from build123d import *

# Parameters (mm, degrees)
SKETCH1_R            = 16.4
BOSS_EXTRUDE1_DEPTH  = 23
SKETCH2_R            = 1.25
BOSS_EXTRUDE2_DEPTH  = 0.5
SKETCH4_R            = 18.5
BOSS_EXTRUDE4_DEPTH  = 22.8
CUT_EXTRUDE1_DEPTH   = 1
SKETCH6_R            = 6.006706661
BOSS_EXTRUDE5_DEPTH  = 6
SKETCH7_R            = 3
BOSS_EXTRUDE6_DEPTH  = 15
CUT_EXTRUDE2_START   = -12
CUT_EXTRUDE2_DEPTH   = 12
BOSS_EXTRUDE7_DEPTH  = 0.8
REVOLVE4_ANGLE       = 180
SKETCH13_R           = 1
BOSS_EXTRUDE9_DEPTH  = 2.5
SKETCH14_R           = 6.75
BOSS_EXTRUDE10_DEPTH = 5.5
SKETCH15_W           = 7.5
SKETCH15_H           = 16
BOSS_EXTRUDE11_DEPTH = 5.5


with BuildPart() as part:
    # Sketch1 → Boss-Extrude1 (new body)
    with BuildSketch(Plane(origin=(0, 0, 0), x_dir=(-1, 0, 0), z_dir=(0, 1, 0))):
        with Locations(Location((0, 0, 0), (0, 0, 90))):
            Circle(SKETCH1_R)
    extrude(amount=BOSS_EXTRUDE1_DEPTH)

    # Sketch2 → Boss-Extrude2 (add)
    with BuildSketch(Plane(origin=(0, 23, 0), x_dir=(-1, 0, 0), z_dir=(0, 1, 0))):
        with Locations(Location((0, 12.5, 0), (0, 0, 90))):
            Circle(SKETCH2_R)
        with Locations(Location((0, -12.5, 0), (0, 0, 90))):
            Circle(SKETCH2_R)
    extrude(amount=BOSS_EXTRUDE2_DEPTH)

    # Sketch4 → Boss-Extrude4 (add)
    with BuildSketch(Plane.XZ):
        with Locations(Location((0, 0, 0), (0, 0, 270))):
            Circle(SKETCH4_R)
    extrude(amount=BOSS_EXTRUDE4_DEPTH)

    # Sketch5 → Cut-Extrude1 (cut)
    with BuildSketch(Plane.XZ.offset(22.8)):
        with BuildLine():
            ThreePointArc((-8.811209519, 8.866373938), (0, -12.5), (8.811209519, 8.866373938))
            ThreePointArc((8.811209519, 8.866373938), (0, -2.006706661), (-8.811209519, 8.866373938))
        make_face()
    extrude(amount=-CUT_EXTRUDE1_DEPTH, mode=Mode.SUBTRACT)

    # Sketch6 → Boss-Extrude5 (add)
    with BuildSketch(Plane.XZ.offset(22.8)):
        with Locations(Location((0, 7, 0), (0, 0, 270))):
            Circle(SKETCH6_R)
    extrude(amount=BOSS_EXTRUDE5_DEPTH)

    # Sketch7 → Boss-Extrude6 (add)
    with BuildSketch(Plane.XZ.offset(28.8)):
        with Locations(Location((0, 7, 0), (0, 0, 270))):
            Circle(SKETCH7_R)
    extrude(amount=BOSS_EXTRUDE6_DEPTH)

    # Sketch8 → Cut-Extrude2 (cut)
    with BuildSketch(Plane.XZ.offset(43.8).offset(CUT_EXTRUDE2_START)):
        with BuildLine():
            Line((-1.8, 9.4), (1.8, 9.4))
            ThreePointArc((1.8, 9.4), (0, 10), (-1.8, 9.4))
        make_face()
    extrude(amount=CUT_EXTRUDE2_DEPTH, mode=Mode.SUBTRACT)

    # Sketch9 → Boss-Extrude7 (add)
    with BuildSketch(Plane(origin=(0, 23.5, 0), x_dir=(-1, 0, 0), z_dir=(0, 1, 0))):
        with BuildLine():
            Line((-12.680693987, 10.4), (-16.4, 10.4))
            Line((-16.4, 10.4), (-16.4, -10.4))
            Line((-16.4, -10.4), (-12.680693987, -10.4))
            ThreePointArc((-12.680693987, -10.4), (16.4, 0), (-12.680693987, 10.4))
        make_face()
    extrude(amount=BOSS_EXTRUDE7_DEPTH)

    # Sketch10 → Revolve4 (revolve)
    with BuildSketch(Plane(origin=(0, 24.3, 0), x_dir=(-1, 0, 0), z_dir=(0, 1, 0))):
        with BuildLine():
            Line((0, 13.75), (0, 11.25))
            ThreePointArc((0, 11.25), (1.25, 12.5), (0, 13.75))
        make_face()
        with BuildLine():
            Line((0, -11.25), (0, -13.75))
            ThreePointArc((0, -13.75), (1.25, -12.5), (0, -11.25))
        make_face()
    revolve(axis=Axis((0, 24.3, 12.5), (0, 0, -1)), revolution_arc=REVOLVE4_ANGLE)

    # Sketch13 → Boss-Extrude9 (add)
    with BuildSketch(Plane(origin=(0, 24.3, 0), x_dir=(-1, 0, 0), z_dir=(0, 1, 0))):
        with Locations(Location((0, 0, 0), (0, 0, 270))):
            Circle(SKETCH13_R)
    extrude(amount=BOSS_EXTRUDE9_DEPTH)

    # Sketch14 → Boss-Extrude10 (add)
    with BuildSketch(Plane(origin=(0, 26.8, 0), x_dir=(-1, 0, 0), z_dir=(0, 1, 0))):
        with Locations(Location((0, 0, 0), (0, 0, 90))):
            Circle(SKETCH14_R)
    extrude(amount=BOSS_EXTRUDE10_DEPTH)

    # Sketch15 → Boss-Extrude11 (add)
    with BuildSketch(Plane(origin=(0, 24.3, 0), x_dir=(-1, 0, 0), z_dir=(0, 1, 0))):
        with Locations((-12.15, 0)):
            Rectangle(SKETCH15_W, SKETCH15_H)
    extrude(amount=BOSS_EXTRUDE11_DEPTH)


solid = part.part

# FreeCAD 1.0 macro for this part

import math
import FreeCAD as App
import Part
import Sketcher


def add_polygon(sketch, points):
    """Adds a closed chain of lines whose ends are joined by coincident constraints."""
    first, n = sketch.GeometryCount, len(points)
    for a, b in zip(points, points[1:] + points[:1]):
        sketch.addGeometry(Part.LineSegment(App.Vector(*a, 0), App.Vector(*b, 0)), False)
    for i in range(n):
        sketch.addConstraint(Sketcher.Constraint("Coincident", first + i, 2, first + (i + 1) % n, 1))

doc = App.newDocument("Part")
params = doc.addObject("Spreadsheet::Sheet", "Params")
for row, (alias, value) in enumerate([
    ("sketch1_diameter", "32.8 mm"),
    ("pad1_length", "23 mm"),
    ("sketch2_diameter", "2.5 mm"),
    ("pad2_length", "0.5 mm"),
    ("sketch3_diameter", "37 mm"),
    ("pad3_length", "22.8 mm"),
    ("sketch4_radius", "12.5 mm"),
    ("pocket1_length", "1 mm"),
    ("pad4_length", "6 mm"),
    ("sketch6_diameter", "6 mm"),
    ("pad5_length", "15 mm"),
    ("sketch7_radius", "3 mm"),
    ("sketch7_width", "3.6 mm"),
    ("pocket2_length", "12 mm"),
    ("sketch8_radius", "16.4 mm"),
    ("sketch8_height", "20.8 mm"),
    ("pad6_length", "0.8 mm"),
    ("sketch9_radius", "1.25 mm"),
    ("revolution_angle", "180 deg"),
    ("sketch10_diameter", "2 mm"),
    ("pad7_length", "2.5 mm"),
    ("sketch11_diameter", "13.5 mm"),
    ("pad8_length", "5.5 mm"),
    ("sketch12_height", "16 mm"),
    ("sketch12_width", "7.5 mm"),
    ("pad9_length", "5.5 mm"),
], start=1):
    params.set(f"A{row}", alias)
    params.set(f"B{row}", "=" + value)
    params.setAlias(f"B{row}", alias)

body = doc.addObject("PartDesign::Body", "Body")

# Sketch on XZ plane
sketch1 = body.newObject("Sketcher::SketchObject", "Sketch")
sketch1.AttachmentSupport = (doc.getObject("XZ_Plane"), [""])
sketch1.MapMode = "FlatFace"
sketch1.addGeometry(Part.Circle(App.Vector(0, 0, 0), App.Vector(0, 0, 1), 16), False)
sketch1.addConstraint(Sketcher.Constraint("Coincident", 0, 3, -1, 1))
sketch1.addConstraint(Sketcher.Constraint("Diameter", 0, 32.8))
sketch1.setExpression("Constraints[1]", "Params.sketch1_diameter")
pad1 = body.newObject("PartDesign::Pad", "Pad")
pad1.Profile = sketch1
pad1.setExpression("Length", "Params.pad1_length")
pad1.Reversed = True

# Sketch on XZ plane
sketch2 = body.newObject("Sketcher::SketchObject", "Sketch001")
sketch2.AttachmentSupport = (doc.getObject("XZ_Plane"), [""])
sketch2.MapMode = "FlatFace"
sketch2.AttachmentOffset = App.Placement(App.Vector(0, 0, -23), App.Rotation())
sketch2.addGeometry(Part.Circle(App.Vector(0, 12.5, 0), App.Vector(0, 0, 1), 1.2), False)
sketch2.addGeometry(Part.Circle(App.Vector(0, -12.5, 0), App.Vector(0, 0, 1), 1.2), False)
sketch2.addConstraint(Sketcher.Constraint("Equal", 0, 1))
sketch2.addConstraint(Sketcher.Constraint("Symmetric", 0, 3, 1, 3, -1, 1))
sketch2.addConstraint(Sketcher.Constraint("PointOnObject", 0, 3, -2))
sketch2.addConstraint(Sketcher.Constraint("Diameter", 0, 2.5))
sketch2.addConstraint(Sketcher.Constraint("DistanceY", 1, 3, 0, 3, 25.0))
sketch2.setExpression("Constraints[3]", "Params.sketch2_diameter")
pad2 = body.newObject("PartDesign::Pad", "Pad001")
pad2.Profile = sketch2
pad2.setExpression("Length", "Params.pad2_length")
pad2.Reversed = True

# Sketch on XZ plane
sketch3 = body.newObject("Sketcher::SketchObject", "Sketch002")
sketch3.AttachmentSupport = (doc.getObject("XZ_Plane"), [""])
sketch3.MapMode = "FlatFace"
sketch3.addGeometry(Part.Circle(App.Vector(0, 0, 0), App.Vector(0, 0, 1), 18), False)
sketch3.addConstraint(Sketcher.Constraint("Coincident", 0, 3, -1, 1))
sketch3.addConstraint(Sketcher.Constraint("Diameter", 0, 37.0))
sketch3.setExpression("Constraints[1]", "Params.sketch3_diameter")
pad3 = body.newObject("PartDesign::Pad", "Pad002")
pad3.Profile = sketch3
pad3.setExpression("Length", "Params.pad3_length")

# Sketch on XZ plane
sketch4 = body.newObject("Sketcher::SketchObject", "Sketch003")
sketch4.AttachmentSupport = (doc.getObject("XZ_Plane"), [""])
sketch4.MapMode = "FlatFace"
sketch4.AttachmentOffset = App.Placement(App.Vector(0, 0, 22.8), App.Rotation())
sketch4.addGeometry(Part.ArcOfCircle(Part.Circle(App.Vector(0, 0, 0), App.Vector(0, 0, 1), 12), math.radians(135), math.radians(405)), False)
sketch4.addGeometry(Part.ArcOfCircle(Part.Circle(App.Vector(0, 7, 0), App.Vector(0, 0, 1), 9), math.radians(168), math.radians(372)), False)
sketch4.addConstraint(Sketcher.Constraint("Coincident", 0, 1, 1, 1))
sketch4.addConstraint(Sketcher.Constraint("Coincident", 1, 2, 0, 2))
sketch4.addConstraint(Sketcher.Constraint("Coincident", 0, 3, -1, 1))
sketch4.addConstraint(Sketcher.Constraint("PointOnObject", 1, 3, -2))
sketch4.addConstraint(Sketcher.Constraint("Radius", 0, 12.5))
sketch4.addConstraint(Sketcher.Constraint("DistanceY", -1, 1, 1, 3, 7.0))
sketch4.addConstraint(Sketcher.Constraint("Radius", 1, 9.006707))
sketch4.setExpression("Constraints[4]", "Params.sketch4_radius")
pocket1 = body.newObject("PartDesign::Pocket", "Pocket")
pocket1.Profile = sketch4
pocket1.setExpression("Length", "Params.pocket1_length")

# Sketch on XZ plane
sketch5 = body.newObject("Sketcher::SketchObject", "Sketch004")
sketch5.AttachmentSupport = (doc.getObject("XZ_Plane"), [""])
sketch5.MapMode = "FlatFace"
sketch5.AttachmentOffset = App.Placement(App.Vector(0, 0, 22.8), App.Rotation())
sketch5.addGeometry(Part.Circle(App.Vector(0, 7, 0), App.Vector(0, 0, 1), 6), False)
sketch5.addConstraint(Sketcher.Constraint("PointOnObject", 0, 3, -2))
sketch5.addConstraint(Sketcher.Constraint("DistanceY", -1, 1, 0, 3, 7.0))
sketch5.addConstraint(Sketcher.Constraint("Diameter", 0, 12.013413))
pad4 = body.newObject("PartDesign::Pad", "Pad003")
pad4.Profile = sketch5
pad4.setExpression("Length", "Params.pad4_length")

# Sketch on XZ plane
sketch6 = body.newObject("Sketcher::SketchObject", "Sketch005")
sketch6.AttachmentSupport = (doc.getObject("XZ_Plane"), [""])
sketch6.MapMode = "FlatFace"
sketch6.AttachmentOffset = App.Placement(App.Vector(0, 0, 28.8), App.Rotation())
sketch6.addGeometry(Part.Circle(App.Vector(0, 7, 0), App.Vector(0, 0, 1), 3), False)
sketch6.addConstraint(Sketcher.Constraint("PointOnObject", 0, 3, -2))
sketch6.addConstraint(Sketcher.Constraint("Diameter", 0, 6.0))
sketch6.addConstraint(Sketcher.Constraint("DistanceY", -1, 1, 0, 3, 7.0))
sketch6.setExpression("Constraints[1]", "Params.sketch6_diameter")
pad5 = body.newObject("PartDesign::Pad", "Pad004")
pad5.Profile = sketch6
pad5.setExpression("Length", "Params.pad5_length")

# Sketch on XZ plane
sketch7 = body.newObject("Sketcher::SketchObject", "Sketch006")
sketch7.AttachmentSupport = (doc.getObject("XZ_Plane"), [""])
sketch7.MapMode = "FlatFace"
sketch7.AttachmentOffset = App.Placement(App.Vector(0, 0, 31.8), App.Rotation())
sketch7.addGeometry(Part.LineSegment(App.Vector(-1.8, 9.4, 0), App.Vector(1.8, 9.4, 0)), False)
sketch7.addGeometry(Part.ArcOfCircle(Part.Circle(App.Vector(0, 7, 0), App.Vector(0, 0, 1), 3), math.radians(53), math.radians(127)), False)
sketch7.addConstraint(Sketcher.Constraint("Coincident", 0, 1, 1, 2))
sketch7.addConstraint(Sketcher.Constraint("Coincident", 1, 1, 0, 2))
sketch7.addConstraint(Sketcher.Constraint("Horizontal", 0))
sketch7.addConstraint(Sketcher.Constraint("PointOnObject", 1, 3, -2))
sketch7.addConstraint(Sketcher.Constraint("Radius", 1, 3.0))
sketch7.addConstraint(Sketcher.Constraint("DistanceX", 0, 1, 0, 2, 3.6))
sketch7.addConstraint(Sketcher.Constraint("DistanceY", -1, 1, 1, 3, 7.0))
sketch7.setExpression("Constraints[4]", "Params.sketch7_radius")
sketch7.setExpression("Constraints[5]", "Params.sketch7_width")
pocket2 = body.newObject("PartDesign::Pocket", "Pocket001")
pocket2.Profile = sketch7
pocket2.setExpression("Length", "Params.pocket2_length")
pocket2.Reversed = True

# Sketch on XZ plane
sketch8 = body.newObject("Sketcher::SketchObject", "Sketch007")
sketch8.AttachmentSupport = (doc.getObject("XZ_Plane"), [""])
sketch8.MapMode = "FlatFace"
sketch8.AttachmentOffset = App.Placement(App.Vector(0, 0, -23.5), App.Rotation())
sketch8.addGeometry(Part.LineSegment(App.Vector(12.7, 10.4, 0), App.Vector(16.4, 10.4, 0)), False)
sketch8.addGeometry(Part.LineSegment(App.Vector(16.4, 10.4, 0), App.Vector(16.4, -10.4, 0)), False)
sketch8.addGeometry(Part.LineSegment(App.Vector(16.4, -10.4, 0), App.Vector(12.7, -10.4, 0)), False)
sketch8.addGeometry(Part.ArcOfCircle(Part.Circle(App.Vector(0, 0, 0), App.Vector(0, 0, 1), 16.4), math.radians(39), math.radians(321)), False)
sketch8.addConstraint(Sketcher.Constraint("Coincident", 0, 2, 1, 1))
sketch8.addConstraint(Sketcher.Constraint("Coincident", 1, 2, 2, 1))
sketch8.addConstraint(Sketcher.Constraint("Coincident", 2, 2, 3, 2))
sketch8.addConstraint(Sketcher.Constraint("Coincident", 3, 1, 0, 1))
sketch8.addConstraint(Sketcher.Constraint("Horizontal", 0))
sketch8.addConstraint(Sketcher.Constraint("Vertical", 1))
sketch8.addConstraint(Sketcher.Constraint("Horizontal", 2))
sketch8.addConstraint(Sketcher.Constraint("Coincident", 3, 3, -1, 1))
sketch8.addConstraint(Sketcher.Constraint("Vertical", 2, 2, 3, 1))
sketch8.addConstraint(Sketcher.Constraint("Radius", 3, 16.4))
sketch8.addConstraint(Sketcher.Constraint("DistanceY", 1, 2, 1, 1, 20.8))
sketch8.addConstraint(Sketcher.Constraint("DistanceX", -1, 1, 0, 2, 16.4))
sketch8.setExpression("Constraints[9]", "Params.sketch8_radius")
sketch8.setExpression("Constraints[10]", "Params.sketch8_height")
pad6 = body.newObject("PartDesign::Pad", "Pad005")
pad6.Profile = sketch8
pad6.setExpression("Length", "Params.pad6_length")
pad6.Reversed = True

# Sketch on XZ plane
sketch9 = body.newObject("Sketcher::SketchObject", "Sketch008")
sketch9.AttachmentSupport = (doc.getObject("XZ_Plane"), [""])
sketch9.MapMode = "FlatFace"
sketch9.AttachmentOffset = App.Placement(App.Vector(0, 0, -24.3), App.Rotation())
sketch9.addGeometry(Part.LineSegment(App.Vector(0, 13.8, 0), App.Vector(0, 11.2, 0)), False)
sketch9.addGeometry(Part.ArcOfCircle(Part.Circle(App.Vector(0, 12.5, 0), App.Vector(0, 0, 1), 1.2), math.radians(90), math.radians(270)), False)
sketch9.addGeometry(Part.LineSegment(App.Vector(0, -11.2, 0), App.Vector(0, -13.8, 0)), False)
sketch9.addGeometry(Part.ArcOfCircle(Part.Circle(App.Vector(0, -12.5, 0), App.Vector(0, 0, 1), 1.2), math.radians(90), math.radians(270)), False)
sketch9.addConstraint(Sketcher.Constraint("Coincident", 0, 1, 1, 1))
sketch9.addConstraint(Sketcher.Constraint("Coincident", 1, 2, 0, 2))
sketch9.addConstraint(Sketcher.Constraint("Coincident", 2, 1, 3, 1))
sketch9.addConstraint(Sketcher.Constraint("Coincident", 3, 2, 2, 2))
sketch9.addConstraint(Sketcher.Constraint("Vertical", 0))
sketch9.addConstraint(Sketcher.Constraint("Vertical", 2))
sketch9.addConstraint(Sketcher.Constraint("Equal", 1, 3))
sketch9.addConstraint(Sketcher.Constraint("Symmetric", 1, 3, 3, 3, -1, 1))
sketch9.addConstraint(Sketcher.Constraint("PointOnObject", 1, 3, -2))
sketch9.addConstraint(Sketcher.Constraint("PointOnObject", 0, 1, -2))
sketch9.addConstraint(Sketcher.Constraint("PointOnObject", 2, 1, -2))
sketch9.addConstraint(Sketcher.Constraint("Radius", 1, 1.25))
sketch9.addConstraint(Sketcher.Constraint("DistanceY", 3, 3, 1, 3, 25.0))
sketch9.setExpression("Constraints[11]", "Params.sketch9_radius")
revolution = body.newObject("PartDesign::Revolution", "Revolution")
revolution.Profile = sketch9
revolution.ReferenceAxis = (sketch9, ["V_Axis"])
revolution.setExpression("Angle", "Params.revolution_angle")
revolution.Reversed = True

# Sketch on XZ plane
sketch10 = body.newObject("Sketcher::SketchObject", "Sketch009")
sketch10.AttachmentSupport = (doc.getObject("XZ_Plane"), [""])
sketch10.MapMode = "FlatFace"
sketch10.AttachmentOffset = App.Placement(App.Vector(0, 0, -24.3), App.Rotation())
sketch10.addGeometry(Part.Circle(App.Vector(0, 0, 0), App.Vector(0, 0, 1), 1), False)
sketch10.addConstraint(Sketcher.Constraint("Coincident", 0, 3, -1, 1))
sketch10.addConstraint(Sketcher.Constraint("Diameter", 0, 2.0))
sketch10.setExpression("Constraints[1]", "Params.sketch10_diameter")
pad7 = body.newObject("PartDesign::Pad", "Pad006")
pad7.Profile = sketch10
pad7.setExpression("Length", "Params.pad7_length")
pad7.Reversed = True

# Sketch on XZ plane
sketch11 = body.newObject("Sketcher::SketchObject", "Sketch010")
sketch11.AttachmentSupport = (doc.getObject("XZ_Plane"), [""])
sketch11.MapMode = "FlatFace"
sketch11.AttachmentOffset = App.Placement(App.Vector(0, 0, -26.8), App.Rotation())
sketch11.addGeometry(Part.Circle(App.Vector(0, 0, 0), App.Vector(0, 0, 1), 7), False)
sketch11.addConstraint(Sketcher.Constraint("Coincident", 0, 3, -1, 1))
sketch11.addConstraint(Sketcher.Constraint("Diameter", 0, 13.5))
sketch11.setExpression("Constraints[1]", "Params.sketch11_diameter")
pad8 = body.newObject("PartDesign::Pad", "Pad007")
pad8.Profile = sketch11
pad8.setExpression("Length", "Params.pad8_length")
pad8.Reversed = True

# Sketch on XZ plane
sketch12 = body.newObject("Sketcher::SketchObject", "Sketch011")
sketch12.AttachmentSupport = (doc.getObject("XZ_Plane"), [""])
sketch12.MapMode = "FlatFace"
sketch12.AttachmentOffset = App.Placement(App.Vector(0, 0, -24.3), App.Rotation())
add_polygon(sketch12, [(16, 8), (16, -8), (8, -8), (8, 8)])  # lines 0-3
sketch12.addConstraint(Sketcher.Constraint("Vertical", 0))
sketch12.addConstraint(Sketcher.Constraint("Horizontal", 1))
sketch12.addConstraint(Sketcher.Constraint("Vertical", 2))
sketch12.addConstraint(Sketcher.Constraint("Horizontal", 3))
sketch12.addConstraint(Sketcher.Constraint("DistanceY", 0, 2, 0, 1, 16.0))
sketch12.addConstraint(Sketcher.Constraint("DistanceX", 1, 2, 1, 1, 7.5))
sketch12.addConstraint(Sketcher.Constraint("DistanceY", 0, 2, -1, 1, 8.0))
sketch12.addConstraint(Sketcher.Constraint("DistanceX", -1, 1, 0, 2, 15.9))
sketch12.setExpression("Constraints[8]", "Params.sketch12_height")
sketch12.setExpression("Constraints[9]", "Params.sketch12_width")
pad9 = body.newObject("PartDesign::Pad", "Pad008")
pad9.Profile = sketch12
pad9.setExpression("Length", "Params.pad9_length")
pad9.Reversed = True

doc.recompute()
